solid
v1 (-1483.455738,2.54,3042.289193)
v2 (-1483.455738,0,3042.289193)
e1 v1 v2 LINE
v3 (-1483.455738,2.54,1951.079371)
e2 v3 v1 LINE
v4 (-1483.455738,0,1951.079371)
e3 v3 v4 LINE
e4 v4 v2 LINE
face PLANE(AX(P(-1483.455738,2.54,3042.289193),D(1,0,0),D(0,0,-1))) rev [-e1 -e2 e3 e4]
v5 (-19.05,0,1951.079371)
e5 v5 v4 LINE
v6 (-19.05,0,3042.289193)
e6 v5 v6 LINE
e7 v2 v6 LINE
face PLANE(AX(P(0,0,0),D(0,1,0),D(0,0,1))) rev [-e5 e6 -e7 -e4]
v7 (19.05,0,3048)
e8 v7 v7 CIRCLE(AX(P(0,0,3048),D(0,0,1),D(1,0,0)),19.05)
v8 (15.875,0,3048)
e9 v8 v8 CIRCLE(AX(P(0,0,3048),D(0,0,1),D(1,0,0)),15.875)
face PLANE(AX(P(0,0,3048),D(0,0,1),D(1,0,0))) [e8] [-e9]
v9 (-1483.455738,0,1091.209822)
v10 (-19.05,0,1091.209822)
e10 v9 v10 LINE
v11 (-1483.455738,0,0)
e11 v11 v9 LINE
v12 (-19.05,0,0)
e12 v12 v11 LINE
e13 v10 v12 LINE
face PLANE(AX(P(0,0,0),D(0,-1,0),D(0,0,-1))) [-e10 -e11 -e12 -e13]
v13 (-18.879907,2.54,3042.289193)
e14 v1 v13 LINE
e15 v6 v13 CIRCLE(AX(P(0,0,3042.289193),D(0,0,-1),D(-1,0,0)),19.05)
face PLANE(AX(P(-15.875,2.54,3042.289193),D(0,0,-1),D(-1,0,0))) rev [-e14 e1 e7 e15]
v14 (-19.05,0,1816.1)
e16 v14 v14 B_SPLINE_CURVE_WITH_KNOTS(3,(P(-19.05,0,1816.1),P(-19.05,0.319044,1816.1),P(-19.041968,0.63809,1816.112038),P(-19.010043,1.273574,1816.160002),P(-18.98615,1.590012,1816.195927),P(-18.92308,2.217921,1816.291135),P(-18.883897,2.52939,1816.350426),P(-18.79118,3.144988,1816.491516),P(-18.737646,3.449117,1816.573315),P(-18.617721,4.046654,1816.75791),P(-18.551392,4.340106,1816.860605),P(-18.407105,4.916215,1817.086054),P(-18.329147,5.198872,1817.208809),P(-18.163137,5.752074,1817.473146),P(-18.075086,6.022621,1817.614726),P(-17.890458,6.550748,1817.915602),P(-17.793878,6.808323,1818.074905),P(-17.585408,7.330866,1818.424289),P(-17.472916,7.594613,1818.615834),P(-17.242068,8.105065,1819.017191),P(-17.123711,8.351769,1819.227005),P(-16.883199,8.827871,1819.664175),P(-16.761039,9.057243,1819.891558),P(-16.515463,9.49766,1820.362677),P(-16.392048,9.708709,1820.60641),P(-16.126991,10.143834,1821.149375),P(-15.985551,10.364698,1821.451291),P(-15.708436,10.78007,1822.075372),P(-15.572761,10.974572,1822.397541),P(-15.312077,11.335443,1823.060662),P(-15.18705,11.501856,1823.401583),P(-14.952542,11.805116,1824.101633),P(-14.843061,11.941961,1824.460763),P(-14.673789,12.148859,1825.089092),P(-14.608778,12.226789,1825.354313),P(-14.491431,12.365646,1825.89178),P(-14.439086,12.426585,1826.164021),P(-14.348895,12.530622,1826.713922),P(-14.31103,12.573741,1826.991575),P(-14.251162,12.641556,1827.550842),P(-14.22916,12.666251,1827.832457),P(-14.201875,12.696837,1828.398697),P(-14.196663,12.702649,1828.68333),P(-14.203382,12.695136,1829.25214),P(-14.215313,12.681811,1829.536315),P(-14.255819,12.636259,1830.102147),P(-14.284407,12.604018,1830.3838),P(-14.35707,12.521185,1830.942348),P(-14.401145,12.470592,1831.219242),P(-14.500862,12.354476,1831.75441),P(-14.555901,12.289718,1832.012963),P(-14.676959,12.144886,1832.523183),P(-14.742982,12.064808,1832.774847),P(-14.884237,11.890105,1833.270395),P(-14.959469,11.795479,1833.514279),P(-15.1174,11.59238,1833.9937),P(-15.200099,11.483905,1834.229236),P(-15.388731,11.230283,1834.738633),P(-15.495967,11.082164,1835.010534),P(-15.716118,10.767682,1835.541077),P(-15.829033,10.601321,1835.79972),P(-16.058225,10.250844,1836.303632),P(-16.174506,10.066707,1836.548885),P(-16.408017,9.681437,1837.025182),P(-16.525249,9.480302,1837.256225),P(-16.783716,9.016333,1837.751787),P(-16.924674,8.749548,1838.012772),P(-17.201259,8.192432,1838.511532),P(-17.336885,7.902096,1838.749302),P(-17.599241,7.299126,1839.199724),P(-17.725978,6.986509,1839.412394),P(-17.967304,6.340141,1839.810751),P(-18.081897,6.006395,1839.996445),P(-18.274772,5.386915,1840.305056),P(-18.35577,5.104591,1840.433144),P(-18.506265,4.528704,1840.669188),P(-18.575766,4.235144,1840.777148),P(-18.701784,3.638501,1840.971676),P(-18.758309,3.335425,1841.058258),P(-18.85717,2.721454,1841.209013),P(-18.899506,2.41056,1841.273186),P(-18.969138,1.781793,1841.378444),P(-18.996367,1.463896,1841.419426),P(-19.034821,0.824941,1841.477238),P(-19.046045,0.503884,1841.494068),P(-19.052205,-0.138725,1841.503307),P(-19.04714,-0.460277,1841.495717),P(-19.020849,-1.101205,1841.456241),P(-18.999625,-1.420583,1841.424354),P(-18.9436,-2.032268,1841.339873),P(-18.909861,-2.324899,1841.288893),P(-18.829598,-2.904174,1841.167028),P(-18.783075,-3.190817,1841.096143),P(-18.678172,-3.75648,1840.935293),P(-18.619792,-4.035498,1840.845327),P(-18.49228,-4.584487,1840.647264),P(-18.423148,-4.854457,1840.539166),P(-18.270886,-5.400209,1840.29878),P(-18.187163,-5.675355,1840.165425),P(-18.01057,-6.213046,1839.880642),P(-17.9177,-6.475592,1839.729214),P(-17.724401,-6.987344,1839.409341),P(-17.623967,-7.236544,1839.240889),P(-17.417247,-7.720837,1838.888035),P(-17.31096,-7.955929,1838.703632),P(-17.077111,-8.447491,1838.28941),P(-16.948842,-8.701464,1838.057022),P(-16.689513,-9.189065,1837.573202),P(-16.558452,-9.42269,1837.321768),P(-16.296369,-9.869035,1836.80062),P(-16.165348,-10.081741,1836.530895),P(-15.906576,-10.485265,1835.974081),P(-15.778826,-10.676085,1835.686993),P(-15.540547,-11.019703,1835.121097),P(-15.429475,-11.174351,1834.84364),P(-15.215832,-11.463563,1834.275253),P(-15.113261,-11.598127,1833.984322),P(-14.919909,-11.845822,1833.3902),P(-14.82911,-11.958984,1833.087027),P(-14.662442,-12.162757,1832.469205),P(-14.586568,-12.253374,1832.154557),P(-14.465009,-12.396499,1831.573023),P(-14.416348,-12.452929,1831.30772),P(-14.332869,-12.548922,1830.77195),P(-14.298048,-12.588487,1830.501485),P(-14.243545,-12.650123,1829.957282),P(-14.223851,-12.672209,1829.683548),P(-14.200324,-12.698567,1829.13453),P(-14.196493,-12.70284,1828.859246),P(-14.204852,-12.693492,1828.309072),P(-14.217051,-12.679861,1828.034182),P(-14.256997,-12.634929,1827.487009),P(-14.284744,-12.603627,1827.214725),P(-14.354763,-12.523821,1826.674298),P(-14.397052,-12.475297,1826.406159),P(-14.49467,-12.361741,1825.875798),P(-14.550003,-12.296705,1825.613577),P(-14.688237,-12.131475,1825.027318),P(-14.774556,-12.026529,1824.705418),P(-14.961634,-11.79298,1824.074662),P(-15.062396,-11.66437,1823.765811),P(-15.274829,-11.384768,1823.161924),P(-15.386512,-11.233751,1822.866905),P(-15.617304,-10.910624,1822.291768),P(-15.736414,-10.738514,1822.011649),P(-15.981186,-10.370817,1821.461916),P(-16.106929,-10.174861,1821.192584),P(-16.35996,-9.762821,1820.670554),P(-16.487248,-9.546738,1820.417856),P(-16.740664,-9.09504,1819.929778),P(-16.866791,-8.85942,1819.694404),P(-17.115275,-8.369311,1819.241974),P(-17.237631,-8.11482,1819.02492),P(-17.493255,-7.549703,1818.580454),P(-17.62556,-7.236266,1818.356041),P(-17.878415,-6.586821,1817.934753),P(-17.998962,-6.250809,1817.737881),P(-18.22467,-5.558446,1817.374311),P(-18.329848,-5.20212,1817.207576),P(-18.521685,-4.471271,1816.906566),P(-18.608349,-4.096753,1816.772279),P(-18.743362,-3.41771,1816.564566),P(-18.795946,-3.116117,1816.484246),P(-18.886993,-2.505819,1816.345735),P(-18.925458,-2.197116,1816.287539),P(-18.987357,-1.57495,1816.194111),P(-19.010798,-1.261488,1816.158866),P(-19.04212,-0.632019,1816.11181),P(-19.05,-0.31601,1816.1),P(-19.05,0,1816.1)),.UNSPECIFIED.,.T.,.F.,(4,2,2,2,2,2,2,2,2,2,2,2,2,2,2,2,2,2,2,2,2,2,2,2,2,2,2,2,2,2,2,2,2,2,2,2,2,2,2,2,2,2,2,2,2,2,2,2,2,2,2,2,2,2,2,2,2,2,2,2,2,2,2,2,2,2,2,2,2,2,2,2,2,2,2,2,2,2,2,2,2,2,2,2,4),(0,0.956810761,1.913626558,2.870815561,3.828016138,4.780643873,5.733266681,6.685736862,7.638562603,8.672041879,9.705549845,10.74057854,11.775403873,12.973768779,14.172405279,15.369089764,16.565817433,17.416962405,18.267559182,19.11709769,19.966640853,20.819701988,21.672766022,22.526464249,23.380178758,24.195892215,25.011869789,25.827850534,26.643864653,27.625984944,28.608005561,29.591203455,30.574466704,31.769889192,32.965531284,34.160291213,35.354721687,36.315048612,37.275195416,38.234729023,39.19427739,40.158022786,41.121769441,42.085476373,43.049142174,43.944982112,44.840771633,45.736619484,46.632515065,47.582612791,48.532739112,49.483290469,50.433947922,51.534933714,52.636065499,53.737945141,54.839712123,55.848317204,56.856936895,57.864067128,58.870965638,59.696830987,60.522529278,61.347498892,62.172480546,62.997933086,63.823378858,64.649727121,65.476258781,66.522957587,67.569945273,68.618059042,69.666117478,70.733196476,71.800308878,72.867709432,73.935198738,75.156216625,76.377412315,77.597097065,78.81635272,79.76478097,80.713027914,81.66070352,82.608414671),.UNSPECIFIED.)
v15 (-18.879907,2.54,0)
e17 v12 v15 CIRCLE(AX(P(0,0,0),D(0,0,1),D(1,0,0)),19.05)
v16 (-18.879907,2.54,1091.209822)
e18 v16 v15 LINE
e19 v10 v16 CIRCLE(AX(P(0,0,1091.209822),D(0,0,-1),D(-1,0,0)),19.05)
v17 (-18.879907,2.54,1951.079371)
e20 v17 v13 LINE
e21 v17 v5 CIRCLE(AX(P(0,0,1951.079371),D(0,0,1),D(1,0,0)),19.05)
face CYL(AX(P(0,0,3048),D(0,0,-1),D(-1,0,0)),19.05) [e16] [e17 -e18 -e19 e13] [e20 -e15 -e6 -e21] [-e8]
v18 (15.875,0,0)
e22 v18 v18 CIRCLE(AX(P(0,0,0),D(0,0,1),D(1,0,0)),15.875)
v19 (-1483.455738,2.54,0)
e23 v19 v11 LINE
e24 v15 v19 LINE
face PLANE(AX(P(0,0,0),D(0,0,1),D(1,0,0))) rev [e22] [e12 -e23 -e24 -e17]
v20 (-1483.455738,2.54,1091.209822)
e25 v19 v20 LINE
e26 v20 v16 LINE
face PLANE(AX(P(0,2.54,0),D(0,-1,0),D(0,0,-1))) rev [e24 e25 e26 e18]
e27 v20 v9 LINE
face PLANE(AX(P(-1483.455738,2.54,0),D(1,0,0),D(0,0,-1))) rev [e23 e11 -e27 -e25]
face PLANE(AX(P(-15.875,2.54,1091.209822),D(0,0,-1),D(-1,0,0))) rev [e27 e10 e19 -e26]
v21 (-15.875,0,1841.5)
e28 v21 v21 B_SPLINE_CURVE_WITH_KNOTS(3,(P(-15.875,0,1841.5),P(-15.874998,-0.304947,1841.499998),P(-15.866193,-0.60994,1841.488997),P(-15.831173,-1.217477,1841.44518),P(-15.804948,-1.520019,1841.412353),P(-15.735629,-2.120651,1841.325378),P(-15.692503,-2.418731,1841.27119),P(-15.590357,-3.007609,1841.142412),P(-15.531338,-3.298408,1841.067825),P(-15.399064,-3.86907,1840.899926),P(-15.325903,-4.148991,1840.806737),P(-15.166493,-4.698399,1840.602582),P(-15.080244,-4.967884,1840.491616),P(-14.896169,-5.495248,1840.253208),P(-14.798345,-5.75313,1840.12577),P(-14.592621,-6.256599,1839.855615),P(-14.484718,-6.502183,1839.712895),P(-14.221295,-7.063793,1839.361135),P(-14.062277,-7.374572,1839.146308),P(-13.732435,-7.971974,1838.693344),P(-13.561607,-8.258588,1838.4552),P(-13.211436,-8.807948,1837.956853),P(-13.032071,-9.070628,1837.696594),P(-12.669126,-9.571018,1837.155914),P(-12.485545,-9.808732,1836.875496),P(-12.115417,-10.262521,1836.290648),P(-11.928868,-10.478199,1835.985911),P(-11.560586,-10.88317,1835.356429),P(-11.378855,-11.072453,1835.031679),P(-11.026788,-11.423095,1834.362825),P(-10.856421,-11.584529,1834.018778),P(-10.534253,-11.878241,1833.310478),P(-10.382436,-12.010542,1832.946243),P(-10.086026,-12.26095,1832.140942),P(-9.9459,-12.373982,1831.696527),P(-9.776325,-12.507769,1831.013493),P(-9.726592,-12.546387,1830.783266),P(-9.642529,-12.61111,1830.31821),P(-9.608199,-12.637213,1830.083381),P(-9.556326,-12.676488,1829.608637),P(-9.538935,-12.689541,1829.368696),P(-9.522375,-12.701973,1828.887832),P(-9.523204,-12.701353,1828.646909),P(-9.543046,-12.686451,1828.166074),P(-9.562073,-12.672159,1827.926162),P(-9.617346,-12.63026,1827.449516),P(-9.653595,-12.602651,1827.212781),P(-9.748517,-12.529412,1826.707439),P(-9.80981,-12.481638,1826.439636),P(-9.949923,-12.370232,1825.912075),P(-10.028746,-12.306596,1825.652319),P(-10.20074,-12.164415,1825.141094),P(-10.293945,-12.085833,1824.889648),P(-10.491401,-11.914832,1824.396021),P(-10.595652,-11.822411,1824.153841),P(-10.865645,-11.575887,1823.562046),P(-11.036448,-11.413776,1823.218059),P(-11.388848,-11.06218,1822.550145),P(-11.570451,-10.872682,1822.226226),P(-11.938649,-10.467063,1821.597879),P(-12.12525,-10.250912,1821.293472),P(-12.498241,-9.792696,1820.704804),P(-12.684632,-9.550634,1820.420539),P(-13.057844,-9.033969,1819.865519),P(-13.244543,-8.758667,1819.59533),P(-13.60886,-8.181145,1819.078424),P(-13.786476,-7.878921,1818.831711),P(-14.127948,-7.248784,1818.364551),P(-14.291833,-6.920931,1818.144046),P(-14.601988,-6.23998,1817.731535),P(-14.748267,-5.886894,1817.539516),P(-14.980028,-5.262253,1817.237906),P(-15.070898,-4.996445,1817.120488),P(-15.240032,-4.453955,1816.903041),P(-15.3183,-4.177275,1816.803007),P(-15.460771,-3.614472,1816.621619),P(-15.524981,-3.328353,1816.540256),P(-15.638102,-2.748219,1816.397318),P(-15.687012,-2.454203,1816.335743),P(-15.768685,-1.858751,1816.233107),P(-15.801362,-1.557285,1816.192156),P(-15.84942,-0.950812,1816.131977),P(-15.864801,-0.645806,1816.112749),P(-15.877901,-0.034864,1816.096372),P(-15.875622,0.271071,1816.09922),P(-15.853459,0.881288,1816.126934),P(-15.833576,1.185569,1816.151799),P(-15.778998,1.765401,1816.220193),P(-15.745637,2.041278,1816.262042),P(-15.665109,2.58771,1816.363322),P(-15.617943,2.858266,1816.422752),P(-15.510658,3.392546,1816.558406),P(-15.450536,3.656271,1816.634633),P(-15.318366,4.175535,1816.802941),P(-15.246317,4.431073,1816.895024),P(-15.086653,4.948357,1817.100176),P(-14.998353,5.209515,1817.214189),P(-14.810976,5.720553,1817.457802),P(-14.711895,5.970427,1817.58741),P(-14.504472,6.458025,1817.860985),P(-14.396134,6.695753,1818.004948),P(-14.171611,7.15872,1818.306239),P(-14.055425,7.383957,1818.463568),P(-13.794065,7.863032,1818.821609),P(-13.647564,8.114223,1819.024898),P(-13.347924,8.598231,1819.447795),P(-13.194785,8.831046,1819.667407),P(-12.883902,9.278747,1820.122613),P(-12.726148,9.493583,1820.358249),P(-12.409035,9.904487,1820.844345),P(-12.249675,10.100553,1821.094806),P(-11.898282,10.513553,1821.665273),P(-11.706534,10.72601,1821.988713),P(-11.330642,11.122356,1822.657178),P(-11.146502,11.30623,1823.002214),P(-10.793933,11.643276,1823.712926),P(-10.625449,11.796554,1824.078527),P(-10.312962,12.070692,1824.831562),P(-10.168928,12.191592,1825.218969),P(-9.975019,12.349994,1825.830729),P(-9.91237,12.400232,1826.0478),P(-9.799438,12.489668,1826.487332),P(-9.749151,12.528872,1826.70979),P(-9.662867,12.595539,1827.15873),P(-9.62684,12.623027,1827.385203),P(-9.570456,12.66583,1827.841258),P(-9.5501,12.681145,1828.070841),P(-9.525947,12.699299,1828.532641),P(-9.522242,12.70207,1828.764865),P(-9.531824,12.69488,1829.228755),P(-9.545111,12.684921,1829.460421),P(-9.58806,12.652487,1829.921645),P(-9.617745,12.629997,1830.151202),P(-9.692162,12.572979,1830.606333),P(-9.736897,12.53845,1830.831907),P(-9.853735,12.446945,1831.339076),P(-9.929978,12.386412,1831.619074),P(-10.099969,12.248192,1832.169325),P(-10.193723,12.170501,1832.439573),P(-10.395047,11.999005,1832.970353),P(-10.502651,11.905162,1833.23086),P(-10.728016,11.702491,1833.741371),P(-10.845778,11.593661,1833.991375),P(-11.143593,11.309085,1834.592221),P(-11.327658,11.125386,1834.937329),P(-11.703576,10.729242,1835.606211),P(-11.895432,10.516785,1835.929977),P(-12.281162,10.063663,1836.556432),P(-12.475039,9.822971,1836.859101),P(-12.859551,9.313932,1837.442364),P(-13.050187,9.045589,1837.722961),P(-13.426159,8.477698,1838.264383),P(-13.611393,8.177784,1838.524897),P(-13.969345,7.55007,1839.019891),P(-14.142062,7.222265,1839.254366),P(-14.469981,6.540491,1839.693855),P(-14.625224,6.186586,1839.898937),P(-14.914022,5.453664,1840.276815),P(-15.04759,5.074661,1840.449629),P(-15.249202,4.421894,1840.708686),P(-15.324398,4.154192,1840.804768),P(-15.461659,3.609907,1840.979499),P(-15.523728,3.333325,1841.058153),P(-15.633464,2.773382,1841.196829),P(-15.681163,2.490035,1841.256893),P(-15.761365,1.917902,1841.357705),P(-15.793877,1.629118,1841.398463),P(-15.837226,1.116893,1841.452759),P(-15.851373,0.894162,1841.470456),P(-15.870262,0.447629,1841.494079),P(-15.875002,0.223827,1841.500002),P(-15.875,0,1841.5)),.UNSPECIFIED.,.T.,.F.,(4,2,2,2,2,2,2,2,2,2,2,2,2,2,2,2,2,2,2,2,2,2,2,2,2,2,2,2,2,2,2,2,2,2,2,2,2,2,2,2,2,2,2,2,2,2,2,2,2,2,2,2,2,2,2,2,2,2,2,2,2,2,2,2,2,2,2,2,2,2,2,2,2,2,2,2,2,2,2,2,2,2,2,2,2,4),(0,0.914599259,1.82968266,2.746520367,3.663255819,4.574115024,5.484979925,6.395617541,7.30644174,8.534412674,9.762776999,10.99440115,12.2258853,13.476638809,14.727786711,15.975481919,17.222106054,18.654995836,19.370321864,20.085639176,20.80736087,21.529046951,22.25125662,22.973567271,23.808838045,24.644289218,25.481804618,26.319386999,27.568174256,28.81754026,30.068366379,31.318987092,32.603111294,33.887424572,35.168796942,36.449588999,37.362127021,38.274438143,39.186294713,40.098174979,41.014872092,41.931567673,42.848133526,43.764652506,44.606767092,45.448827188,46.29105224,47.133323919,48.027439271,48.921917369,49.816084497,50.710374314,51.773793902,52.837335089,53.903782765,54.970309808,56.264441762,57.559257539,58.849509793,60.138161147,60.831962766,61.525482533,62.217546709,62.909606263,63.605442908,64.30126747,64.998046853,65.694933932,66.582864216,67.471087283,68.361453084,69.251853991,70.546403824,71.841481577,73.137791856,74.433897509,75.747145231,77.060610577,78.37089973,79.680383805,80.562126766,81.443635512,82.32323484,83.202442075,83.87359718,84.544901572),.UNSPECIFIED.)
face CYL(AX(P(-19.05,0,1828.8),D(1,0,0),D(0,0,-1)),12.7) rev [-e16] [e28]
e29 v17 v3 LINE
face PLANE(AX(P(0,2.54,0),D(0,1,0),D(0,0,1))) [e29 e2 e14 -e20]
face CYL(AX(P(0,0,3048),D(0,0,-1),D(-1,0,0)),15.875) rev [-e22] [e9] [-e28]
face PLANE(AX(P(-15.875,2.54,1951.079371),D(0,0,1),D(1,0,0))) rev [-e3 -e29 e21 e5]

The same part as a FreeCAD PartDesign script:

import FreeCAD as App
import Part
import Sketcher

V = App.Vector
Q = App.Units.Quantity


def add_polygon(sketch, points):
    """Adds a closed chain of lines whose ends are joined by coincident constraints."""
    first, n = sketch.GeometryCount, len(points)
    for a, b in zip(points, points[1:] + points[:1]):
        sketch.addGeometry(Part.LineSegment(App.Vector(*a, 0), App.Vector(*b, 0)), False)
    for i in range(n):
        sketch.addConstraint(Sketcher.Constraint("Coincident", first + i, 2, first + (i + 1) % n, 1))

doc = App.newDocument("Part")
body = doc.addObject("PartDesign::Body", "Body")

# Sketch on XY plane
sketch1 = body.newObject("Sketcher::SketchObject", "Sketch")
sketch1.AttachmentSupport = (doc.getObject("XY_Plane"), [""])
sketch1.MapMode = "FlatFace"
sketch1.addGeometry(Part.Circle(V(0, 0, 0), V(0, 0, 1), 19), False)
sketch1.addGeometry(Part.Circle(V(0, 0, 0), V(0, 0, 1), 16), False)
sketch1.addConstraint(Sketcher.Constraint("Coincident", 0, 3, -1, 1))
sketch1.addConstraint(Sketcher.Constraint("Coincident", 1, 3, -1, 1))
sketch1.addConstraint(Sketcher.Constraint("Diameter", 0, Q("1.5 in")))
sketch1.addConstraint(Sketcher.Constraint("Diameter", 1, Q("1.25 in")))
pad1 = body.newObject("PartDesign::Pad", "Pad")
pad1.Profile = sketch1
pad1.Length = Q("120 in")

# Sketch on YZ plane
sketch2 = body.newObject("Sketcher::SketchObject", "Sketch001")
sketch2.AttachmentSupport = (doc.getObject("YZ_Plane"), [""])
sketch2.MapMode = "FlatFace"
sketch2.addGeometry(Part.Circle(V(0, 1829, 0), V(0, 0, 1), 13), False)
sketch2.addConstraint(Sketcher.Constraint("PointOnObject", 0, 3, -2))
sketch2.addConstraint(Sketcher.Constraint("Diameter", 0, Q("1 in")))
sketch2.addConstraint(Sketcher.Constraint("DistanceY", -1, 1, 0, 3, Q("72 in")))
pocket1 = body.newObject("PartDesign::Pocket", "Pocket")
pocket1.Profile = sketch2
pocket1.Type = "ThroughAll"

# Sketch on XZ plane
sketch3 = body.newObject("Sketcher::SketchObject", "Sketch002")
sketch3.AttachmentSupport = (doc.getObject("XZ_Plane"), [""])
sketch3.MapMode = "FlatFace"
add_polygon(sketch3, [(-1483, 0), (-1483, 1091), (-16, 1091), (-16, 0)])  # lines 0-3
add_polygon(sketch3, [(-1483, 1951), (-1483, 3042), (-16, 3042), (-16, 1951)])  # lines 4-7
sketch3.addConstraint(Sketcher.Constraint("Vertical", 0))
sketch3.addConstraint(Sketcher.Constraint("Horizontal", 1))
sketch3.addConstraint(Sketcher.Constraint("Vertical", 2))
sketch3.addConstraint(Sketcher.Constraint("Horizontal", 3))
sketch3.addConstraint(Sketcher.Constraint("Vertical", 4))
sketch3.addConstraint(Sketcher.Constraint("Horizontal", 5))
sketch3.addConstraint(Sketcher.Constraint("Vertical", 6))
sketch3.addConstraint(Sketcher.Constraint("Horizontal", 7))
sketch3.addConstraint(Sketcher.Constraint("PointOnObject", 2, 2, -1))
sketch3.addConstraint(Sketcher.Constraint("Vertical", 3, 2, 4, 2))
sketch3.addConstraint(Sketcher.Constraint("Vertical", 2, 2, 5, 2))
sketch3.addConstraint(Sketcher.Constraint("Equal", 2, 4))
sketch3.addConstraint(Sketcher.Constraint("DistanceX", 1, 2, -1, 1, Q("0.625 in")))
sketch3.addConstraint(Sketcher.Constraint("DistanceY", 0, 1, 0, 2, Q("1091.209822 mm")))
sketch3.addConstraint(Sketcher.Constraint("DistanceX", 1, 1, 1, 2, Q("1467.580738 mm")))
sketch3.addConstraint(Sketcher.Constraint("DistanceY", -1, 1, 6, 2, Q("1951.079371 mm")))
pad2 = body.newObject("PartDesign::Pad", "Pad001")
pad2.Profile = sketch3
pad2.Length = Q("0.1 in")
pad2.Reversed = True

doc.recompute()
